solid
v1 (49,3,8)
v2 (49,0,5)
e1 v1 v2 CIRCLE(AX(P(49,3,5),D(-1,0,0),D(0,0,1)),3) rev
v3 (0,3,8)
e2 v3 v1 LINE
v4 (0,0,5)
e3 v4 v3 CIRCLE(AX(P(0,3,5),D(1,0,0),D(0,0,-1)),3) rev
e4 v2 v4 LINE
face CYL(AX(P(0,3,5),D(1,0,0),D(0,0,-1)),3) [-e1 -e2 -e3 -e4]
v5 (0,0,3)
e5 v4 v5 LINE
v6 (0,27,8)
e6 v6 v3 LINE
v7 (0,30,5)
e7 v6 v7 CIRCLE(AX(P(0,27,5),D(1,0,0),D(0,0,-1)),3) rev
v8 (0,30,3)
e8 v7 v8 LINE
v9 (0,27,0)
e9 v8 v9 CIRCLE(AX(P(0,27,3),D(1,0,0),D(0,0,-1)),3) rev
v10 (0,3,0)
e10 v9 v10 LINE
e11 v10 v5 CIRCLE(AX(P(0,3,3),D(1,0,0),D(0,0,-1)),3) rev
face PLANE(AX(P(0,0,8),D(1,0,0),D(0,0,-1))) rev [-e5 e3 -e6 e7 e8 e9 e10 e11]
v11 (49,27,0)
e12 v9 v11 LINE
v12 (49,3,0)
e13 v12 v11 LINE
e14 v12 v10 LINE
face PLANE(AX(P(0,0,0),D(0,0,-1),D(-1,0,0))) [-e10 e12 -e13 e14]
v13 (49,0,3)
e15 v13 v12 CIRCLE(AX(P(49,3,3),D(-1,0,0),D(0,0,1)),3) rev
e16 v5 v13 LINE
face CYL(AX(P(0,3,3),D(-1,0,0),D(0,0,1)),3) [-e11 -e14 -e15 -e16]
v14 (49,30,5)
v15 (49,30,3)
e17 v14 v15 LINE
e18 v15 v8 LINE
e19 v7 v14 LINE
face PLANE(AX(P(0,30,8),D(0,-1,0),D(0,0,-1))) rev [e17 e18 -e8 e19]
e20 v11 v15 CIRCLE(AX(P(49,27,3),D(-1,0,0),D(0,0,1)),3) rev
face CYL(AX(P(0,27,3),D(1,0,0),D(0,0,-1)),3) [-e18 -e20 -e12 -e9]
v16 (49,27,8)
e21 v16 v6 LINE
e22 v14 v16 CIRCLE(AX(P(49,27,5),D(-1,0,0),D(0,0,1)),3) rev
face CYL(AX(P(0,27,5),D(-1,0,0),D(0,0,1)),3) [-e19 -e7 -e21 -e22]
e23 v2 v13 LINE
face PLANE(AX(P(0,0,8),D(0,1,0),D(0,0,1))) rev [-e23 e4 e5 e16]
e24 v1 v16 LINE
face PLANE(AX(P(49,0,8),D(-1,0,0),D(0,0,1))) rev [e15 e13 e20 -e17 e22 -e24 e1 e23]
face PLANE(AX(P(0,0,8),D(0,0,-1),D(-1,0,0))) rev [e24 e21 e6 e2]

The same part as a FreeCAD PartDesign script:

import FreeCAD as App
import Part
import Sketcher
from FreeCAD import Vector


def edges_at(feature, points):
    """Names of the edges that pass closest to the given points."""
    edges = feature.Shape.Edges
    near = lambda p: min(range(len(edges)), key=lambda i: edges[i].distToShape(Part.Vertex(*p))[0])
    return sorted({f"Edge{near(p) + 1}" for p in points})


def add_polygon(sketch, points):
    """Adds a closed chain of lines whose ends are joined by coincident constraints."""
    first, n = sketch.GeometryCount, len(points)
    for a, b in zip(points, points[1:] + points[:1]):
        sketch.addGeometry(Part.LineSegment(App.Vector(*a, 0), App.Vector(*b, 0)), False)
    for i in range(n):
        sketch.addConstraint(Sketcher.Constraint("Coincident", first + i, 2, first + (i + 1) % n, 1))

doc = App.newDocument("Part")
params = doc.addObject("Spreadsheet::Sheet", "Params")
for row, (alias, value) in enumerate([
    ("sketch1_width", "49 mm"),
    ("sketch1_height", "30 mm"),
    ("pad1_length", "8 mm"),
    ("fillet_radius", "3 mm"),
], start=1):
    params.set(f"A{row}", alias)
    params.set(f"B{row}", "=" + value)
    params.setAlias(f"B{row}", alias)

body = doc.addObject("PartDesign::Body", "Body")

# Sketch on XY plane
sketch1 = body.newObject("Sketcher::SketchObject", "Sketch")
sketch1.AttachmentSupport = (doc.getObject("XY_Plane"), [""])
sketch1.MapMode = "FlatFace"
add_polygon(sketch1, [(0, 30), (0, 0), (49, 0), (49, 30)])  # lines 0-3
sketch1.addConstraint(Sketcher.Constraint("Vertical", 0))
sketch1.addConstraint(Sketcher.Constraint("Horizontal", 1))
sketch1.addConstraint(Sketcher.Constraint("Vertical", 2))
sketch1.addConstraint(Sketcher.Constraint("Horizontal", 3))
sketch1.addConstraint(Sketcher.Constraint("Coincident", 0, 2, -1, 1))
sketch1.addConstraint(Sketcher.Constraint("DistanceX", 1, 1, 1, 2, 49.0))
sketch1.addConstraint(Sketcher.Constraint("DistanceY", 0, 2, 0, 1, 30.0))
sketch1.setExpression("Constraints[9]", "Params.sketch1_width")
sketch1.setExpression("Constraints[10]", "Params.sketch1_height")
pad1 = body.newObject("PartDesign::Pad", "Pad")
pad1.Profile = sketch1
pad1.setExpression("Length", "Params.pad1_length")
doc.recompute()

fillet = body.newObject("PartDesign::Fillet", "Fillet")
fillet.Base = (pad1, edges_at(pad1, [
    (24.5, 30, 8),
    (24.5, 30, 0),
    (24.5, 0, 0),
    (24.5, 0, 8),
]))
fillet.setExpression("Radius", "Params.fillet_radius")

doc.recompute()
